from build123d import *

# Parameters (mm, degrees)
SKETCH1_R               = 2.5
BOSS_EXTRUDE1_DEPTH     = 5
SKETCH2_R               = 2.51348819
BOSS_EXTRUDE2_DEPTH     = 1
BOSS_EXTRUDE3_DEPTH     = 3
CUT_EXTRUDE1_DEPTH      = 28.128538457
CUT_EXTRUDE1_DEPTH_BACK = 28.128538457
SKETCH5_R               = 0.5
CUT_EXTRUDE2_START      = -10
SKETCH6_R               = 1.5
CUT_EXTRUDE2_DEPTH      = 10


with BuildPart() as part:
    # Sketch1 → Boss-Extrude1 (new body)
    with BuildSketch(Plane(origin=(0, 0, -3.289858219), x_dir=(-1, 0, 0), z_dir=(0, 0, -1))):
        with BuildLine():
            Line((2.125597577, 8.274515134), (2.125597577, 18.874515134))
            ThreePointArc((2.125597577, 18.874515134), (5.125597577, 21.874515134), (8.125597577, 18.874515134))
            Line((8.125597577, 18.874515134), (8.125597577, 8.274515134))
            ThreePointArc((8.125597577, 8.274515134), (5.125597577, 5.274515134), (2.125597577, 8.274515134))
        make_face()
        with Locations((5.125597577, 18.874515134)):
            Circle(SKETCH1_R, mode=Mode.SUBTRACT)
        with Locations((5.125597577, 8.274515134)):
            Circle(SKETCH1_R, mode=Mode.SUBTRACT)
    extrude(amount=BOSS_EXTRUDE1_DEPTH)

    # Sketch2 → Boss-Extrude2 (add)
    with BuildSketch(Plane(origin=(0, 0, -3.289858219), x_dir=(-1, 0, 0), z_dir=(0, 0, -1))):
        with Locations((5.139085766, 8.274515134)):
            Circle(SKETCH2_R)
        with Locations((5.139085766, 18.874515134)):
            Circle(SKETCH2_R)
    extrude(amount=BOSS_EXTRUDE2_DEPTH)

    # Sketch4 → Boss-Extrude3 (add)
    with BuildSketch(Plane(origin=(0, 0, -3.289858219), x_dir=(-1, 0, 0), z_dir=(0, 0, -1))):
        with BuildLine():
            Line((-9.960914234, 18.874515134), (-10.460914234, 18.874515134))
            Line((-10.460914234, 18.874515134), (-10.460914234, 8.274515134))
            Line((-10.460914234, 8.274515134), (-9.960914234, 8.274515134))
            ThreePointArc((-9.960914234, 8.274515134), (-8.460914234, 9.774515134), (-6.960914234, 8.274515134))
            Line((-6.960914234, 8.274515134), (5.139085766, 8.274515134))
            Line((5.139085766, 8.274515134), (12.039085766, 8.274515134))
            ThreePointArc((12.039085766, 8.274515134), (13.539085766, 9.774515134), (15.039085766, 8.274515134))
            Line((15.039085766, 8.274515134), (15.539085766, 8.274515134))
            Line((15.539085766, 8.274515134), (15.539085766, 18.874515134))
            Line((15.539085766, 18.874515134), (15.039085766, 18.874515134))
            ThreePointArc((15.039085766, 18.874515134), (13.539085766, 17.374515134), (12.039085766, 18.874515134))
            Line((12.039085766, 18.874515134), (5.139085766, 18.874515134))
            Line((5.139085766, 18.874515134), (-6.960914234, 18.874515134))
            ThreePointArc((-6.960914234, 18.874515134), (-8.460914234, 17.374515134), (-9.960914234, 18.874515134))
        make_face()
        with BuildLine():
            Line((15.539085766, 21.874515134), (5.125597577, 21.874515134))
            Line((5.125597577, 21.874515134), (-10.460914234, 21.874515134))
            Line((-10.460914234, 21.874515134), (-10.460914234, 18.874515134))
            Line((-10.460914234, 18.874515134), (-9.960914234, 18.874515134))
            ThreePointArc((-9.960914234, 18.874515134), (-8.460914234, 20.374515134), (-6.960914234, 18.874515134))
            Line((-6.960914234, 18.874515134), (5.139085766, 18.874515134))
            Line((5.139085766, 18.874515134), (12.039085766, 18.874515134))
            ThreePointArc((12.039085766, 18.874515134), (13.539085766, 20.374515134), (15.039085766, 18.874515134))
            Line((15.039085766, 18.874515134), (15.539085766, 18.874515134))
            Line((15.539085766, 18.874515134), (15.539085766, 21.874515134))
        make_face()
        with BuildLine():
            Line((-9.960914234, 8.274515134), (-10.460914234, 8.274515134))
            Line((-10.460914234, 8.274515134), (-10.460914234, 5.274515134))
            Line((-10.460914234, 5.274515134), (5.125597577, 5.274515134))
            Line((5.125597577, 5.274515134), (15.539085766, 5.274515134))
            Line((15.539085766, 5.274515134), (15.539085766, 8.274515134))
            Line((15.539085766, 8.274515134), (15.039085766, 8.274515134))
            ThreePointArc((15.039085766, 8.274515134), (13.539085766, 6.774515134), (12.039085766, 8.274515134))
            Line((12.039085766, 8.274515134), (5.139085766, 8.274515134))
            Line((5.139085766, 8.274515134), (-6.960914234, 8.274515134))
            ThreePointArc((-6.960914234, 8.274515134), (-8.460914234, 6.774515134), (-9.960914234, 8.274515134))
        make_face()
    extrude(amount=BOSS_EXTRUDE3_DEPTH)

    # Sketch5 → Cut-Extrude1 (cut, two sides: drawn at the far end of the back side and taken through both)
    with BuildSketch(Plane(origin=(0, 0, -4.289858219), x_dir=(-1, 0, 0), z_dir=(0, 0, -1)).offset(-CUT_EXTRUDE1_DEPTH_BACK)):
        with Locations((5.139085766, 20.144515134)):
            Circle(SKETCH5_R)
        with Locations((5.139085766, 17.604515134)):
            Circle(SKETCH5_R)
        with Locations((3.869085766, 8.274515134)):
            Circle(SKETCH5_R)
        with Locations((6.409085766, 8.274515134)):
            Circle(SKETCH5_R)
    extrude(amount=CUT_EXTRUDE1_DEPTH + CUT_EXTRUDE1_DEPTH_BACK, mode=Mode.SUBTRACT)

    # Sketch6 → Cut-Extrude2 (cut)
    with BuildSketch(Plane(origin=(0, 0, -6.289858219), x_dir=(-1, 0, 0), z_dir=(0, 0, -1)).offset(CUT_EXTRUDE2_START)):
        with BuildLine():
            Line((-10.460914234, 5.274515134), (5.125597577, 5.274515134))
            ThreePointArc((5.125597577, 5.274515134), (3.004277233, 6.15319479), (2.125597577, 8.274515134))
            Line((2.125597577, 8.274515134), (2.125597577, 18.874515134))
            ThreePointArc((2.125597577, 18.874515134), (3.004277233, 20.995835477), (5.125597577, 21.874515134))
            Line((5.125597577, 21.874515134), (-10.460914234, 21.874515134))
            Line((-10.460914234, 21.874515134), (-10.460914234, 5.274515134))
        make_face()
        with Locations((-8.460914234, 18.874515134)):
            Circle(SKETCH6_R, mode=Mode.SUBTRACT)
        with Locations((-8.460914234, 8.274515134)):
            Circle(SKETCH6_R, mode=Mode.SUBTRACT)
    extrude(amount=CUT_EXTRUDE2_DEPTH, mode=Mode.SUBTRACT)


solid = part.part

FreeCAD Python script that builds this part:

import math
import FreeCAD as App
import Part
import Sketcher

V = App.Vector

doc = App.newDocument("Part")
body = doc.addObject("PartDesign::Body", "Body")

# Sketch on XY plane
sketch1 = doc.addObject("Sketcher::SketchObject", "Sketch")
body.addObject(sketch1)
sketch1.AttachmentSupport = (doc.XY_Plane, [""])
sketch1.MapMode = "FlatFace"
sketch1.AttachmentOffset = App.Placement(V(0, 0, -3.289858), App.Rotation())
sketch1.addGeometry(Part.LineSegment(V(-2.1, 18.9, 0), V(-2.1, 8.3, 0)), False)
sketch1.addGeometry(Part.ArcOfCircle(Part.Circle(V(-5.1, 8.3, 0), V(0, 0, 1), 3), math.radians(180), math.radians(360)), False)
sketch1.addGeometry(Part.LineSegment(V(-8.1, 8.3, 0), V(-8.1, 18.9, 0)), False)
sketch1.addGeometry(Part.ArcOfCircle(Part.Circle(V(-5.1, 18.9, 0), V(0, 0, 1), 3), math.radians(0), math.radians(180)), False)
sketch1.addGeometry(Part.Circle(V(-5.1, 8.3, 0), V(0, 0, 1), 2.5), False)
sketch1.addGeometry(Part.Circle(V(-5.1, 18.9, 0), V(0, 0, 1), 2.5), False)
sketch1.addConstraint(Sketcher.Constraint("Tangent", 0, 2, 1, 2))
sketch1.addConstraint(Sketcher.Constraint("Tangent", 1, 1, 2, 1))
sketch1.addConstraint(Sketcher.Constraint("Tangent", 2, 2, 3, 2))
sketch1.addConstraint(Sketcher.Constraint("Tangent", 3, 1, 0, 1))
sketch1.addConstraint(Sketcher.Constraint("Vertical", 0))
sketch1.addConstraint(Sketcher.Constraint("Vertical", 2))
sketch1.addConstraint(Sketcher.Constraint("Coincident", 4, 3, 1, 3))
sketch1.addConstraint(Sketcher.Constraint("Coincident", 5, 3, 3, 3))
sketch1.addConstraint(Sketcher.Constraint("Equal", 4, 5))
sketch1.addConstraint(Sketcher.Constraint("Diameter", 4, 5.0))
sketch1.addConstraint(Sketcher.Constraint("Radius", 1, 3.0))
sketch1.addConstraint(Sketcher.Constraint("DistanceY", 0, 2, 0, 1, 10.6))
sketch1.addConstraint(Sketcher.Constraint("DistanceX", 1, 3, -1, 1, 5.125598))
sketch1.addConstraint(Sketcher.Constraint("DistanceY", -1, 1, 1, 3, 8.274515))
pad1 = doc.addObject("PartDesign::Pad", "Pad")
body.addObject(pad1)
pad1.Profile = sketch1
pad1.Length = 5
pad1.Reversed = True

# Sketch on XY plane
sketch2 = doc.addObject("Sketcher::SketchObject", "Sketch001")
body.addObject(sketch2)
sketch2.AttachmentSupport = (doc.XY_Plane, [""])
sketch2.MapMode = "FlatFace"
sketch2.AttachmentOffset = App.Placement(V(0, 0, -3.289858), App.Rotation())
sketch2.addGeometry(Part.Circle(V(-5.1, 8.3, 0), V(0, 0, 1), 2.5), False)
sketch2.addGeometry(Part.Circle(V(-5.1, 18.9, 0), V(0, 0, 1), 2.5), False)
sketch2.addConstraint(Sketcher.Constraint("Equal", 0, 1))
sketch2.addConstraint(Sketcher.Constraint("Vertical", 0, 3, 1, 3))
sketch2.addConstraint(Sketcher.Constraint("DistanceY", 0, 3, 1, 3, 10.6))
sketch2.addConstraint(Sketcher.Constraint("Diameter", 0, 5.026976))
sketch2.addConstraint(Sketcher.Constraint("DistanceX", 0, 3, -1, 1, 5.139086))
sketch2.addConstraint(Sketcher.Constraint("DistanceY", -1, 1, 0, 3, 8.274515))
pad2 = doc.addObject("PartDesign::Pad", "Pad001")
body.addObject(pad2)
pad2.Profile = sketch2
pad2.Length = 1
pad2.Reversed = True

# Sketch on XY plane
sketch3 = doc.addObject("Sketcher::SketchObject", "Sketch002")
body.addObject(sketch3)
sketch3.AttachmentSupport = (doc.XY_Plane, [""])
sketch3.MapMode = "FlatFace"
sketch3.AttachmentOffset = App.Placement(V(0, 0, -3.289858), App.Rotation())
sketch3.addGeometry(Part.LineSegment(V(-15.5, 21.9, 0), V(10.5, 21.9, 0)), False)
sketch3.addGeometry(Part.LineSegment(V(10.5, 21.9, 0), V(10.5, 5.3, 0)), False)
sketch3.addGeometry(Part.LineSegment(V(10.5, 5.3, 0), V(-15.5, 5.3, 0)), False)
sketch3.addGeometry(Part.LineSegment(V(-15.5, 5.3, 0), V(-15.5, 21.9, 0)), False)
sketch3.addGeometry(Part.Circle(V(8.5, 8.3, 0), V(0, 0, 1), 1.5), False)
sketch3.addGeometry(Part.Circle(V(-13.5, 8.3, 0), V(0, 0, 1), 1.5), False)
sketch3.addGeometry(Part.Circle(V(-13.5, 18.9, 0), V(0, 0, 1), 1.5), False)
sketch3.addGeometry(Part.Circle(V(8.5, 18.9, 0), V(0, 0, 1), 1.5), False)
sketch3.addConstraint(Sketcher.Constraint("Coincident", 0, 2, 1, 1))
sketch3.addConstraint(Sketcher.Constraint("Coincident", 1, 2, 2, 1))
sketch3.addConstraint(Sketcher.Constraint("Coincident", 2, 2, 3, 1))
sketch3.addConstraint(Sketcher.Constraint("Coincident", 3, 2, 0, 1))
sketch3.addConstraint(Sketcher.Constraint("Horizontal", 0))
sketch3.addConstraint(Sketcher.Constraint("Vertical", 1))
sketch3.addConstraint(Sketcher.Constraint("Horizontal", 2))
sketch3.addConstraint(Sketcher.Constraint("Vertical", 3))
sketch3.addConstraint(Sketcher.Constraint("Equal", 4, 5))
sketch3.addConstraint(Sketcher.Constraint("Equal", 5, 6))
sketch3.addConstraint(Sketcher.Constraint("Equal", 6, 7))
sketch3.addConstraint(Sketcher.Constraint("Horizontal", 4, 3, 5, 3))
sketch3.addConstraint(Sketcher.Constraint("Horizontal", 6, 3, 7, 3))
sketch3.addConstraint(Sketcher.Constraint("Vertical", 5, 3, 6, 3))
sketch3.addConstraint(Sketcher.Constraint("Vertical", 4, 3, 7, 3))
sketch3.addConstraint(Sketcher.Constraint("Diameter", 4, 3.0))
sketch3.addConstraint(Sketcher.Constraint("DistanceX", 0, 1, 0, 2, 26.0))
sketch3.addConstraint(Sketcher.Constraint("DistanceY", 1, 2, 1, 1, 16.6))
sketch3.addConstraint(Sketcher.Constraint("DistanceX", 5, 3, 4, 3, 22.0))
sketch3.addConstraint(Sketcher.Constraint("DistanceX", 7, 3, 0, 2, 2.0))
sketch3.addConstraint(Sketcher.Constraint("DistanceY", 7, 3, 0, 2, 3.0))
sketch3.addConstraint(Sketcher.Constraint("DistanceY", 1, 2, 4, 3, 3.0))
sketch3.addConstraint(Sketcher.Constraint("DistanceX", -1, 1, 4, 3, 8.460914))
sketch3.addConstraint(Sketcher.Constraint("DistanceY", -1, 1, 4, 3, 8.274515))
pad3 = doc.addObject("PartDesign::Pad", "Pad002")
body.addObject(pad3)
pad3.Profile = sketch3
pad3.Length = 3
pad3.Reversed = True

# Sketch on XY plane
sketch4 = doc.addObject("Sketcher::SketchObject", "Sketch003")
body.addObject(sketch4)
sketch4.AttachmentSupport = (doc.XY_Plane, [""])
sketch4.MapMode = "FlatFace"
sketch4.AttachmentOffset = App.Placement(V(0, 0, -4.289858), App.Rotation())
sketch4.addGeometry(Part.Circle(V(-5.1, 20.1, 0), V(0, 0, 1), 0.5), False)
sketch4.addGeometry(Part.Circle(V(-5.1, 17.6, 0), V(0, 0, 1), 0.5), False)
sketch4.addGeometry(Part.Circle(V(-3.9, 8.3, 0), V(0, 0, 1), 0.5), False)
sketch4.addGeometry(Part.Circle(V(-6.4, 8.3, 0), V(0, 0, 1), 0.5), False)
sketch4.addConstraint(Sketcher.Constraint("Equal", 0, 1))
sketch4.addConstraint(Sketcher.Constraint("Equal", 1, 2))
sketch4.addConstraint(Sketcher.Constraint("Equal", 2, 3))
sketch4.addConstraint(Sketcher.Constraint("Horizontal", 2, 3, 3, 3))
sketch4.addConstraint(Sketcher.Constraint("Vertical", 0, 3, 1, 3))
sketch4.addConstraint(Sketcher.Constraint("Diameter", 0, 1.0))
sketch4.addConstraint(Sketcher.Constraint("DistanceY", 1, 3, 0, 3, 2.54))
sketch4.addConstraint(Sketcher.Constraint("DistanceX", 1, 3, 2, 3, 1.27))
sketch4.addConstraint(Sketcher.Constraint("DistanceY", 2, 3, 1, 3, 9.33))
sketch4.addConstraint(Sketcher.Constraint("DistanceX", 3, 3, 2, 3, 2.54))
sketch4.addConstraint(Sketcher.Constraint("DistanceX", 0, 3, -1, 1, 5.139086))
sketch4.addConstraint(Sketcher.Constraint("DistanceY", -1, 1, 0, 3, 20.144515))
pocket1 = doc.addObject("PartDesign::Pocket", "Pocket")
body.addObject(pocket1)
pocket1.Profile = sketch4
pocket1.Type = "ThroughAll"
pocket1.Midplane = True

# Sketch on XY plane
sketch5 = doc.addObject("Sketcher::SketchObject", "Sketch004")
body.addObject(sketch5)
sketch5.AttachmentSupport = (doc.XY_Plane, [""])
sketch5.MapMode = "FlatFace"
sketch5.AttachmentOffset = App.Placement(V(0, 0, 3.710142), App.Rotation())
sketch5.addGeometry(Part.LineSegment(V(10.5, 5.3, 0), V(-5.1, 5.3, 0)), False)
sketch5.addGeometry(Part.ArcOfCircle(Part.Circle(V(-5.1, 8.3, 0), V(0, 0, 1), 3), math.radians(-90), math.radians(0)), False)
sketch5.addGeometry(Part.LineSegment(V(-2.1, 8.3, 0), V(-2.1, 18.9, 0)), False)
sketch5.addGeometry(Part.ArcOfCircle(Part.Circle(V(-5.1, 18.9, 0), V(0, 0, 1), 3), math.radians(0), math.radians(90)), False)
sketch5.addGeometry(Part.LineSegment(V(-5.1, 21.9, 0), V(10.5, 21.9, 0)), False)
sketch5.addGeometry(Part.LineSegment(V(10.5, 21.9, 0), V(10.5, 5.3, 0)), False)
sketch5.addGeometry(Part.Circle(V(8.5, 8.3, 0), V(0, 0, 1), 1.5), False)
sketch5.addGeometry(Part.Circle(V(8.5, 18.9, 0), V(0, 0, 1), 1.5), False)
sketch5.addConstraint(Sketcher.Constraint("Tangent", 0, 2, 1, 1))
sketch5.addConstraint(Sketcher.Constraint("Tangent", 1, 2, 2, 1))
sketch5.addConstraint(Sketcher.Constraint("Tangent", 2, 2, 3, 1))
sketch5.addConstraint(Sketcher.Constraint("Tangent", 3, 2, 4, 1))
sketch5.addConstraint(Sketcher.Constraint("Coincident", 4, 2, 5, 1))
sketch5.addConstraint(Sketcher.Constraint("Coincident", 5, 2, 0, 1))
sketch5.addConstraint(Sketcher.Constraint("Horizontal", 0))
sketch5.addConstraint(Sketcher.Constraint("Vertical", 2))
sketch5.addConstraint(Sketcher.Constraint("Horizontal", 4))
sketch5.addConstraint(Sketcher.Constraint("Vertical", 5))
sketch5.addConstraint(Sketcher.Constraint("Equal", 1, 3))
sketch5.addConstraint(Sketcher.Constraint("Equal", 6, 7))
sketch5.addConstraint(Sketcher.Constraint("Horizontal", 1, 3, 6, 3))
sketch5.addConstraint(Sketcher.Constraint("Horizontal", 3, 3, 7, 3))
sketch5.addConstraint(Sketcher.Constraint("Vertical", 6, 3, 7, 3))
sketch5.addConstraint(Sketcher.Constraint("Diameter", 6, 3.0))
sketch5.addConstraint(Sketcher.Constraint("Radius", 1, 3.0))
sketch5.addConstraint(Sketcher.Constraint("DistanceY", 2, 1, 2, 2, 10.6))
sketch5.addConstraint(Sketcher.Constraint("DistanceX", 7, 3, 4, 2, 2.0))
sketch5.addConstraint(Sketcher.Constraint("DistanceX", 0, 2, 0, 1, 15.586512))
sketch5.addConstraint(Sketcher.Constraint("DistanceX", 1, 3, -1, 1, 5.125598))
sketch5.addConstraint(Sketcher.Constraint("DistanceY", -1, 1, 1, 3, 8.274515))
pocket2 = doc.addObject("PartDesign::Pocket", "Pocket001")
body.addObject(pocket2)
pocket2.Profile = sketch5
pocket2.Length = 10

doc.recompute()
